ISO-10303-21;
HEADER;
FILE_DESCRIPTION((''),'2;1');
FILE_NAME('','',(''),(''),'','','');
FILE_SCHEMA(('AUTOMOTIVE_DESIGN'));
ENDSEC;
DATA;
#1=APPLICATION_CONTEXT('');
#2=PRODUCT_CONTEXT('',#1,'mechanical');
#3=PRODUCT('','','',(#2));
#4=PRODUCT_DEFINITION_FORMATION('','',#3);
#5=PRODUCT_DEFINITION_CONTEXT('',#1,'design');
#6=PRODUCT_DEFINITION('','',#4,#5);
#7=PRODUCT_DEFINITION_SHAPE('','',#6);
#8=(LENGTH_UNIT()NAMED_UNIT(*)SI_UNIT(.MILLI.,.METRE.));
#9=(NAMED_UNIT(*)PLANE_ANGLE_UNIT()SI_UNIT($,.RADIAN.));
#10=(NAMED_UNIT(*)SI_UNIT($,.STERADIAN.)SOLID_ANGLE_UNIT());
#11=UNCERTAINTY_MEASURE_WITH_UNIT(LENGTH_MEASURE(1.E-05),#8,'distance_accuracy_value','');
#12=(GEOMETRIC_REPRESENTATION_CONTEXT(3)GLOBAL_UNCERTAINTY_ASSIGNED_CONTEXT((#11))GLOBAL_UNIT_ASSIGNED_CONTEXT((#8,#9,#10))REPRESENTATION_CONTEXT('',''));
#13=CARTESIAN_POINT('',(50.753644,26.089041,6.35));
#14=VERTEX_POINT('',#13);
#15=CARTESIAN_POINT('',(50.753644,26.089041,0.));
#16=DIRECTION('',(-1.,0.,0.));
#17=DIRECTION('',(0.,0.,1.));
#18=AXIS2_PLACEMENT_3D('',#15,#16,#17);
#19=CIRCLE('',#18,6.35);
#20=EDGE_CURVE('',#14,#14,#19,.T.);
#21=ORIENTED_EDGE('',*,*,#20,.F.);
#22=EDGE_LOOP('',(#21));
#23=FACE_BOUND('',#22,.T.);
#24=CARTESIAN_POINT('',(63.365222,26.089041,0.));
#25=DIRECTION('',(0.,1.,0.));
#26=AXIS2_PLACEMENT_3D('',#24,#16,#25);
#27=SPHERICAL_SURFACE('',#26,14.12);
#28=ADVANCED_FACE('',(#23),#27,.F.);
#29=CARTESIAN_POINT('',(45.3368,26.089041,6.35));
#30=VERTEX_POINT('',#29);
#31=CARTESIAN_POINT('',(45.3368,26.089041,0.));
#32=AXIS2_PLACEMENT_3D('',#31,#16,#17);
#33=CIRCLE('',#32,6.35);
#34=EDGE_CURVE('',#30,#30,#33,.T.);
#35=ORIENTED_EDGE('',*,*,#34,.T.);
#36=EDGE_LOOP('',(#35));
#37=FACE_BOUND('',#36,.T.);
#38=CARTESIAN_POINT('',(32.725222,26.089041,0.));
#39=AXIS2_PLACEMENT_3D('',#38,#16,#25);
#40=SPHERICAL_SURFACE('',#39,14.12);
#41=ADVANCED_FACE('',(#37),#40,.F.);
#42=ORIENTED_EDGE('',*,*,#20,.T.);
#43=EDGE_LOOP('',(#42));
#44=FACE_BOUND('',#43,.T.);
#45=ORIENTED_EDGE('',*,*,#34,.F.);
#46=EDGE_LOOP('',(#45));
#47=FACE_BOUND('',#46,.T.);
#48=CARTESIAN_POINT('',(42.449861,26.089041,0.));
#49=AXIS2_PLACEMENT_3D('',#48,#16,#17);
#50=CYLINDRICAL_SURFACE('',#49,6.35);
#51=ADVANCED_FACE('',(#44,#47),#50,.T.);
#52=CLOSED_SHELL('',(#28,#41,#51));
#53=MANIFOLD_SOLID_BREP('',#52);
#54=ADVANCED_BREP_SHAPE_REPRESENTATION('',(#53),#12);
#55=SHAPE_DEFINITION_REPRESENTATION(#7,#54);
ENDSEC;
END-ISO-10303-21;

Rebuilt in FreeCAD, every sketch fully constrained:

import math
import FreeCAD as App
import Part
import Sketcher

doc = App.newDocument("Part")
body = doc.addObject("PartDesign::Body", "Body")

# Sketch on XY plane
sketch1 = body.newObject("Sketcher::SketchObject", "Sketch")
sketch1.AttachmentSupport = (doc.getObject("XY_Plane"), [""])
sketch1.MapMode = "FlatFace"
sketch1.addGeometry([
    Part.LineSegment(App.Vector(46.8, 26.1, 0), App.Vector(49.2, 26.1, 0)),
    Part.ArcOfCircle(Part.Circle(App.Vector(63.4, 26.1, 0), App.Vector(0, 0, 1), 14.1), math.radians(153), math.radians(180)),
    Part.LineSegment(App.Vector(50.8, 32.4, 0), App.Vector(45.3, 32.4, 0)),
    Part.ArcOfCircle(Part.Circle(App.Vector(32.7, 26.1, 0), App.Vector(0, 0, 1), 14.1), math.radians(0), math.radians(27)),
], False)
sketch1.addGeometry(Part.LineSegment(App.Vector(32.7, 26.1, 0), App.Vector(63.4, 26.1, 0)), True)  # axis
sketch1.addConstraint([
    Sketcher.Constraint("Coincident", 0, 2, 1, 2),
    Sketcher.Constraint("Coincident", 1, 1, 2, 1),
    Sketcher.Constraint("Coincident", 2, 2, 3, 2),
    Sketcher.Constraint("Coincident", 3, 1, 0, 1),
    Sketcher.Constraint("Horizontal", 0),
    Sketcher.Constraint("Horizontal", 2),
    Sketcher.Constraint("Horizontal", 4),
    Sketcher.Constraint("Coincident", 4, 1, 3, 3),
    Sketcher.Constraint("Coincident", 4, 2, 1, 3),
    Sketcher.Constraint("Equal", 1, 3),
    Sketcher.Constraint("Horizontal", 3, 3, 0, 2),
    Sketcher.Constraint("Radius", 1, 14.12),
    Sketcher.Constraint("DistanceX", 0, 1, 0, 2, 2.4),
    Sketcher.Constraint("DistanceY", 0, 2, 1, 1, 6.35),
    Sketcher.Constraint("DistanceX", -1, 1, 2, 2, 45.3368),
    Sketcher.Constraint("DistanceY", -1, 1, 1, 3, 26.089041),
])
revolution = body.newObject("PartDesign::Revolution", "Revolution")
revolution.Profile = sketch1
revolution.ReferenceAxis = (sketch1, ["Axis0"])
revolution.Angle = 360

doc.recompute()
